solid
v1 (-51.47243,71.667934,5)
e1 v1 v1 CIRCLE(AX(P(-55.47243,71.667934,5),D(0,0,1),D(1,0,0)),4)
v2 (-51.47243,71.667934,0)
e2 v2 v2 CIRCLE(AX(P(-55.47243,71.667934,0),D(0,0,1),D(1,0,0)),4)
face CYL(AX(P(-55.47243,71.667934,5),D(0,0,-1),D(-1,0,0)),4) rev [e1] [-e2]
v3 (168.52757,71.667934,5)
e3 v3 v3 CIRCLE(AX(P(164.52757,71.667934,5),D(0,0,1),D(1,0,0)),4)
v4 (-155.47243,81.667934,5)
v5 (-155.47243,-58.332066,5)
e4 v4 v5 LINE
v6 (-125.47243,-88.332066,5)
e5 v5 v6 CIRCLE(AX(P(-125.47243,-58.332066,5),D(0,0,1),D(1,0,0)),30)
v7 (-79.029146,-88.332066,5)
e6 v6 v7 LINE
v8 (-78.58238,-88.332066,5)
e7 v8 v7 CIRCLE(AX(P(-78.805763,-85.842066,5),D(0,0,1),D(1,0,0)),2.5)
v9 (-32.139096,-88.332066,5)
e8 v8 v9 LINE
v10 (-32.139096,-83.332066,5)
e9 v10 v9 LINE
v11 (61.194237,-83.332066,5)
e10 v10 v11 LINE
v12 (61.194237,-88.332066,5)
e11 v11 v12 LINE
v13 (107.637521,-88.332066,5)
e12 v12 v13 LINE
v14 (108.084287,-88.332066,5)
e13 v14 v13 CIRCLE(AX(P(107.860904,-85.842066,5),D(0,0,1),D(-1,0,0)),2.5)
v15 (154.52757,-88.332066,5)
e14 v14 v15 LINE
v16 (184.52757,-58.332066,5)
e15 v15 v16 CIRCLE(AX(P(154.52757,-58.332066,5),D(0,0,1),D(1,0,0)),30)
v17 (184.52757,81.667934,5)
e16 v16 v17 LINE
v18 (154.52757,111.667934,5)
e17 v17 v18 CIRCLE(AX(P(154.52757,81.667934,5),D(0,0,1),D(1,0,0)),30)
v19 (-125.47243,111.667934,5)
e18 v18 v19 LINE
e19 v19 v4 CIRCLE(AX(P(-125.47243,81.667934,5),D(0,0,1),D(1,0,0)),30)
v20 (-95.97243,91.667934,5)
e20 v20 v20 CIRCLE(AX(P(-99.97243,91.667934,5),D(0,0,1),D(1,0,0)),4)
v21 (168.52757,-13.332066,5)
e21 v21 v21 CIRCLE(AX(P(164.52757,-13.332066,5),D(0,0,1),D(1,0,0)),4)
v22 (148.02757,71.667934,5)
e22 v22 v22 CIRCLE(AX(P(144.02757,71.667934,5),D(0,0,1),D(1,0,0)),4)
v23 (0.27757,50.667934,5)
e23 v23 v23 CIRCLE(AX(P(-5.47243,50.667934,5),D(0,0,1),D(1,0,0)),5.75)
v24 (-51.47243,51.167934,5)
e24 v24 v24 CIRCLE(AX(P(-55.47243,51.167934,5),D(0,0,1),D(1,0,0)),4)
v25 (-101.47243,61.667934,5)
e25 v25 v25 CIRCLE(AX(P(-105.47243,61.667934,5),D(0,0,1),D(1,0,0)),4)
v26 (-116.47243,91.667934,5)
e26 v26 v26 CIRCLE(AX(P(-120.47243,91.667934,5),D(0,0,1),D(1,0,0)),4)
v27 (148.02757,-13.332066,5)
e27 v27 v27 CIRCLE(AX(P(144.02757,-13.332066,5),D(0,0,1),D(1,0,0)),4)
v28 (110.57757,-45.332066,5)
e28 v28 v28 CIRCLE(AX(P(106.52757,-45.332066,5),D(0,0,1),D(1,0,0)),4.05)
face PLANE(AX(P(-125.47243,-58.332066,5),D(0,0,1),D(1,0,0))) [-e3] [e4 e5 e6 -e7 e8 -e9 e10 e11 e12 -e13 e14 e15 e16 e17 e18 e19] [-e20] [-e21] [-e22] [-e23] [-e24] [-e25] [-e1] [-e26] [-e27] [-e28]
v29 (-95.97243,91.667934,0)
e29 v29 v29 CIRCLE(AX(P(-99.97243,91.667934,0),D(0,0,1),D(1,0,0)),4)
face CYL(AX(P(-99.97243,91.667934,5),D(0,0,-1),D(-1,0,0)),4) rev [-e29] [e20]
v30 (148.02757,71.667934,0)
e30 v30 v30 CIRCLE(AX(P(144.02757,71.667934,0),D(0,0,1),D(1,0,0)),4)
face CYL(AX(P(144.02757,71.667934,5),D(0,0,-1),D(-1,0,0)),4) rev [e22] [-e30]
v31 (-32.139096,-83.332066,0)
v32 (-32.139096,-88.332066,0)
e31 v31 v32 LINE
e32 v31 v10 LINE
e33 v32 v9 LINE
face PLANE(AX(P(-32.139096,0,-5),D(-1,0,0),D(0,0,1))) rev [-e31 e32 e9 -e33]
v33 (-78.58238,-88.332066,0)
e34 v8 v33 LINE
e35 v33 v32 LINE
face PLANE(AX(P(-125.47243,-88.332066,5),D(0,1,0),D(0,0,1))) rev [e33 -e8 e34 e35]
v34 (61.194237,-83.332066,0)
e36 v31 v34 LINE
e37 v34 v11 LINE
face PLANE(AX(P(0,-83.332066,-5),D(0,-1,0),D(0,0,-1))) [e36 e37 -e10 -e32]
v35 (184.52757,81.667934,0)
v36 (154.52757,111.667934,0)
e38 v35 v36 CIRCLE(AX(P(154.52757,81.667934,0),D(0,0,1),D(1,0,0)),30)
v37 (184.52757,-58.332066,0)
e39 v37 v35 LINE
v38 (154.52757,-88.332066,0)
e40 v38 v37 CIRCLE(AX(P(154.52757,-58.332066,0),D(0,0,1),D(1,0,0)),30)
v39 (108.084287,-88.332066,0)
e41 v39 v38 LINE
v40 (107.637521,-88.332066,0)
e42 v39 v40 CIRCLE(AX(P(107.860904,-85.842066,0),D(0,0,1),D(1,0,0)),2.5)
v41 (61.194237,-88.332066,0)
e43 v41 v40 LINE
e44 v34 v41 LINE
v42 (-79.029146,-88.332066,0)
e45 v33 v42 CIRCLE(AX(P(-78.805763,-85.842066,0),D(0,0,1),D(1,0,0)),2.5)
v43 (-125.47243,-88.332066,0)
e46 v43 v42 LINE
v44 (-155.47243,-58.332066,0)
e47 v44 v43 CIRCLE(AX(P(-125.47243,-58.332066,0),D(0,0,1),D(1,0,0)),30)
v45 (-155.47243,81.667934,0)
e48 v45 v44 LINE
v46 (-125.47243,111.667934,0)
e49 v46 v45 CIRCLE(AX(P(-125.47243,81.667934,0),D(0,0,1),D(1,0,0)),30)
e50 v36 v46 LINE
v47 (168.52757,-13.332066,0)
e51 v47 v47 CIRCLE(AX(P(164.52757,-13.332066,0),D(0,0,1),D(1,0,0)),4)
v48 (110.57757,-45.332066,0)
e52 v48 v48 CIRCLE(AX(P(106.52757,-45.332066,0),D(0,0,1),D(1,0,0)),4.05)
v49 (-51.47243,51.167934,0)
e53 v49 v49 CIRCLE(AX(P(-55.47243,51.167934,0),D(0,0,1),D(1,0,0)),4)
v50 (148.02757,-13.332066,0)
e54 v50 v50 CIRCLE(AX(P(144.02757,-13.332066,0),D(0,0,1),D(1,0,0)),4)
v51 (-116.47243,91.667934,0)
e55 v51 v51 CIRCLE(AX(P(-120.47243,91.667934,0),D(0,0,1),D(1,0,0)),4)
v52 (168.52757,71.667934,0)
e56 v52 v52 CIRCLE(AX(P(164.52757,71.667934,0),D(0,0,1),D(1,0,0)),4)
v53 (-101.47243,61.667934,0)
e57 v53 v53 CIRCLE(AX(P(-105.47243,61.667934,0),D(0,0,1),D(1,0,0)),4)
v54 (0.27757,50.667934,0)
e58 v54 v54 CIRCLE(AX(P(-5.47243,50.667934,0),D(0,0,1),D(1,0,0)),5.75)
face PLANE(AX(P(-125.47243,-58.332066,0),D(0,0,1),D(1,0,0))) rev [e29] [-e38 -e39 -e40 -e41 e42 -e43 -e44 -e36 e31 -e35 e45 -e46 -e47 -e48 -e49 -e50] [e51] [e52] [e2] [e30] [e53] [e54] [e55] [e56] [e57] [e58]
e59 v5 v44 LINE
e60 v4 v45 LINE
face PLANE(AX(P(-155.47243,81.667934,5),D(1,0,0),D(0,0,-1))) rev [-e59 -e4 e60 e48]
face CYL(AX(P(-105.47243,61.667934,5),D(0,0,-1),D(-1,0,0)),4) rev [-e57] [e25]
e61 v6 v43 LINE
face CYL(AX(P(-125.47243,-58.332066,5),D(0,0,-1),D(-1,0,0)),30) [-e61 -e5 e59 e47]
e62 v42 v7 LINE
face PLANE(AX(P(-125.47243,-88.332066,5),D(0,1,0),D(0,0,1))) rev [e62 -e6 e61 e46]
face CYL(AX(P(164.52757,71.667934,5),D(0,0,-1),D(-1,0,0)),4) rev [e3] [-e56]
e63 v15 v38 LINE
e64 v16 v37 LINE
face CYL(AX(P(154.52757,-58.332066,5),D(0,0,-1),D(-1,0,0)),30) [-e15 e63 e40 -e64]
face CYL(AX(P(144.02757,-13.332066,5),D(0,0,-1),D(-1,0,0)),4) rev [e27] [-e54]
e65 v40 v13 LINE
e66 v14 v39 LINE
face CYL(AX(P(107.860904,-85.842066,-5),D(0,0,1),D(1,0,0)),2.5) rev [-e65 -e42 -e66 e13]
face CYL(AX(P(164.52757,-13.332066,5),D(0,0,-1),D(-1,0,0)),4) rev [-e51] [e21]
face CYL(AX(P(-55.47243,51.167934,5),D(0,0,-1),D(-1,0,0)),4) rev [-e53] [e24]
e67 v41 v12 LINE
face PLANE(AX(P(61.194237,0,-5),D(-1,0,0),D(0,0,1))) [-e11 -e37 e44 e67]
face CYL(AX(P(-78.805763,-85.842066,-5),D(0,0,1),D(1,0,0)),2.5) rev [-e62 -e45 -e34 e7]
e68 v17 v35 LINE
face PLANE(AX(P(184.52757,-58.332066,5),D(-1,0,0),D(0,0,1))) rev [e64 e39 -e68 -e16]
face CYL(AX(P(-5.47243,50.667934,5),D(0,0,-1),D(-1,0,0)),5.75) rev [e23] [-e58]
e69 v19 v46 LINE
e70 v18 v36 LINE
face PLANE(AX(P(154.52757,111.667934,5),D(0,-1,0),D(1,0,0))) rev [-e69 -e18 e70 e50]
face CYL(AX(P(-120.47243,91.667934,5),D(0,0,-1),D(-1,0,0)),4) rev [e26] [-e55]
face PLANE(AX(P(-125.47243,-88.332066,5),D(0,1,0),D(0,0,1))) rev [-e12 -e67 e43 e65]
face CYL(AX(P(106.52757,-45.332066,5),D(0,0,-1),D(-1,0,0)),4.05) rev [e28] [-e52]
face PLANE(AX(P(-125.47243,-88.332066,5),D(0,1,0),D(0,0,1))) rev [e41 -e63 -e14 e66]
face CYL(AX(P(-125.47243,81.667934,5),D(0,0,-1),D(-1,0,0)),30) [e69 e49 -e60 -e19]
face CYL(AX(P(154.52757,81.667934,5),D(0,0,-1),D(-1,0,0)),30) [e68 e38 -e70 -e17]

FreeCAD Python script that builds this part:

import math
import FreeCAD as App
import Part
import Sketcher
from FreeCAD import Vector

doc = App.newDocument("Part")
body = doc.addObject("PartDesign::Body", "Body")

# Sketch on XY plane
sketch1 = body.newObject("Sketcher::SketchObject", "Sketch")
sketch1.AttachmentSupport = (doc.getObject("XY_Plane"), [""])
sketch1.MapMode = "FlatFace"
sketch1.addGeometry(Part.LineSegment(Vector(-125.5, -88.3, 0), Vector(154.5, -88.3, 0)), False)
sketch1.addGeometry(Part.ArcOfCircle(Part.Circle(Vector(154.5, -58.3, 0), Vector(0, 0, 1), 30), math.radians(-90), math.radians(0)), False)
sketch1.addGeometry(Part.LineSegment(Vector(184.5, -58.3, 0), Vector(184.5, 81.7, 0)), False)
sketch1.addGeometry(Part.ArcOfCircle(Part.Circle(Vector(154.5, 81.7, 0), Vector(0, 0, 1), 30), math.radians(0), math.radians(90)), False)
sketch1.addGeometry(Part.LineSegment(Vector(154.5, 111.7, 0), Vector(-125.5, 111.7, 0)), False)
sketch1.addGeometry(Part.ArcOfCircle(Part.Circle(Vector(-125.5, 81.7, 0), Vector(0, 0, 1), 30), math.radians(90), math.radians(180)), False)
sketch1.addGeometry(Part.LineSegment(Vector(-155.5, 81.7, 0), Vector(-155.5, -58.3, 0)), False)
sketch1.addGeometry(Part.ArcOfCircle(Part.Circle(Vector(-125.5, -58.3, 0), Vector(0, 0, 1), 30), math.radians(-180), math.radians(-90)), False)
sketch1.addGeometry(Part.Circle(Vector(106.5, -45.3, 0), Vector(0, 0, 1), 4), False)
sketch1.addGeometry(Part.Circle(Vector(144, -13.3, 0), Vector(0, 0, 1), 4), False)
sketch1.addGeometry(Part.Circle(Vector(164.5, -13.3, 0), Vector(0, 0, 1), 4), False)
sketch1.addGeometry(Part.Circle(Vector(-55.5, 51.2, 0), Vector(0, 0, 1), 4), False)
sketch1.addGeometry(Part.Circle(Vector(-5.5, 50.7, 0), Vector(0, 0, 1), 5.8), False)
sketch1.addGeometry(Part.Circle(Vector(-105.5, 61.7, 0), Vector(0, 0, 1), 4), False)
sketch1.addGeometry(Part.Circle(Vector(-55.5, 71.7, 0), Vector(0, 0, 1), 4), False)
sketch1.addGeometry(Part.Circle(Vector(-120.5, 91.7, 0), Vector(0, 0, 1), 4), False)
sketch1.addGeometry(Part.Circle(Vector(-100, 91.7, 0), Vector(0, 0, 1), 4), False)
sketch1.addGeometry(Part.Circle(Vector(144, 71.7, 0), Vector(0, 0, 1), 4), False)
sketch1.addGeometry(Part.Circle(Vector(164.5, 71.7, 0), Vector(0, 0, 1), 4), False)
sketch1.addConstraint(Sketcher.Constraint("Tangent", 0, 2, 1, 1))
sketch1.addConstraint(Sketcher.Constraint("Tangent", 1, 2, 2, 1))
sketch1.addConstraint(Sketcher.Constraint("Tangent", 2, 2, 3, 1))
sketch1.addConstraint(Sketcher.Constraint("Tangent", 3, 2, 4, 1))
sketch1.addConstraint(Sketcher.Constraint("Tangent", 4, 2, 5, 1))
sketch1.addConstraint(Sketcher.Constraint("Tangent", 5, 2, 6, 1))
sketch1.addConstraint(Sketcher.Constraint("Tangent", 6, 2, 7, 1))
sketch1.addConstraint(Sketcher.Constraint("Tangent", 7, 2, 0, 1))
sketch1.addConstraint(Sketcher.Constraint("Horizontal", 0))
sketch1.addConstraint(Sketcher.Constraint("Vertical", 2))
sketch1.addConstraint(Sketcher.Constraint("Horizontal", 4))
sketch1.addConstraint(Sketcher.Constraint("Vertical", 6))
sketch1.addConstraint(Sketcher.Constraint("Equal", 1, 3))
sketch1.addConstraint(Sketcher.Constraint("Equal", 3, 5))
sketch1.addConstraint(Sketcher.Constraint("Equal", 5, 7))
sketch1.addConstraint(Sketcher.Constraint("Equal", 9, 10))
sketch1.addConstraint(Sketcher.Constraint("Equal", 10, 11))
sketch1.addConstraint(Sketcher.Constraint("Equal", 11, 13))
sketch1.addConstraint(Sketcher.Constraint("Equal", 13, 14))
sketch1.addConstraint(Sketcher.Constraint("Equal", 14, 15))
sketch1.addConstraint(Sketcher.Constraint("Equal", 15, 16))
sketch1.addConstraint(Sketcher.Constraint("Equal", 16, 17))
sketch1.addConstraint(Sketcher.Constraint("Equal", 17, 18))
sketch1.addConstraint(Sketcher.Constraint("Horizontal", 9, 3, 10, 3))
sketch1.addConstraint(Sketcher.Constraint("Horizontal", 15, 3, 16, 3))
sketch1.addConstraint(Sketcher.Constraint("Horizontal", 14, 3, 17, 3))
sketch1.addConstraint(Sketcher.Constraint("Horizontal", 17, 3, 18, 3))
sketch1.addConstraint(Sketcher.Constraint("Vertical", 11, 3, 14, 3))
sketch1.addConstraint(Sketcher.Constraint("Vertical", 9, 3, 17, 3))
sketch1.addConstraint(Sketcher.Constraint("Vertical", 10, 3, 18, 3))
sketch1.addConstraint(Sketcher.Constraint("Diameter", 9, 8.0))
sketch1.addConstraint(Sketcher.Constraint("Radius", 1, 30.0))
sketch1.addConstraint(Sketcher.Constraint("Diameter", 8, 8.1))
sketch1.addConstraint(Sketcher.Constraint("Diameter", 12, 11.5))
sketch1.addConstraint(Sketcher.Constraint("DistanceX", 0, 1, 0, 2, 280.0))
sketch1.addConstraint(Sketcher.Constraint("DistanceY", 2, 1, 2, 2, 140.0))
sketch1.addConstraint(Sketcher.Constraint("DistanceX", 8, 3, 1, 3, 48.0))
sketch1.addConstraint(Sketcher.Constraint("DistanceY", 1, 3, 8, 3, 13.0))
sketch1.addConstraint(Sketcher.Constraint("DistanceY", 1, 3, 9, 3, 45.0))
sketch1.addConstraint(Sketcher.Constraint("DistanceX", 1, 3, 10, 3, 10.0))
sketch1.addConstraint(Sketcher.Constraint("DistanceX", 5, 3, 11, 3, 70.0))
sketch1.addConstraint(Sketcher.Constraint("DistanceX", 11, 3, 12, 3, 50.0))
sketch1.addConstraint(Sketcher.Constraint("DistanceY", 12, 3, 5, 3, 31.0))
sketch1.addConstraint(Sketcher.Constraint("DistanceX", 5, 3, 13, 3, 20.0))
sketch1.addConstraint(Sketcher.Constraint("DistanceY", 13, 3, 5, 3, 20.0))
sketch1.addConstraint(Sketcher.Constraint("DistanceY", 13, 3, 14, 3, 10.0))
sketch1.addConstraint(Sketcher.Constraint("DistanceX", 5, 3, 15, 3, 5.0))
sketch1.addConstraint(Sketcher.Constraint("DistanceY", 5, 3, 15, 3, 10.0))
sketch1.addConstraint(Sketcher.Constraint("DistanceX", 9, 3, 1, 3, 10.5))
sketch1.addConstraint(Sketcher.Constraint("DistanceY", 11, 3, 5, 3, 30.5))
sketch1.addConstraint(Sketcher.Constraint("DistanceX", 15, 3, 16, 3, 20.5))
sketch1.addConstraint(Sketcher.Constraint("DistanceX", -1, 1, 1, 3, 154.52757))
sketch1.addConstraint(Sketcher.Constraint("DistanceY", 1, 3, -1, 1, 58.332066))
pad1 = body.newObject("PartDesign::Pad", "Pad")
pad1.Profile = sketch1
pad1.Length = 5

# Sketch on XY plane
sketch2 = body.newObject("Sketcher::SketchObject", "Sketch001")
sketch2.AttachmentSupport = (doc.getObject("XY_Plane"), [""])
sketch2.MapMode = "FlatFace"
sketch2.AttachmentOffset = App.Placement(Vector(0, 0, 5), App.Rotation())
sketch2.addGeometry(Part.LineSegment(Vector(-32, -83, 0), Vector(-32, -88, 0)), False)
sketch2.addGeometry(Part.LineSegment(Vector(-32, -88, 0), Vector(61, -88, 0)), False)
sketch2.addGeometry(Part.LineSegment(Vector(61, -88, 0), Vector(61, -83, 0)), False)
sketch2.addGeometry(Part.LineSegment(Vector(61, -83, 0), Vector(-32, -83, 0)), False)
sketch2.addConstraint(Sketcher.Constraint("Coincident", 0, 2, 1, 1))
sketch2.addConstraint(Sketcher.Constraint("Coincident", 1, 2, 2, 1))
sketch2.addConstraint(Sketcher.Constraint("Coincident", 2, 2, 3, 1))
sketch2.addConstraint(Sketcher.Constraint("Coincident", 3, 2, 0, 1))
sketch2.addConstraint(Sketcher.Constraint("Vertical", 0))
sketch2.addConstraint(Sketcher.Constraint("Horizontal", 1))
sketch2.addConstraint(Sketcher.Constraint("Vertical", 2))
sketch2.addConstraint(Sketcher.Constraint("Horizontal", 3))
sketch2.addConstraint(Sketcher.Constraint("DistanceY", 0, 2, 0, 1, 5.0))
sketch2.addConstraint(Sketcher.Constraint("DistanceX", 1, 1, 1, 2, 93.333333))
sketch2.addConstraint(Sketcher.Constraint("DistanceX", 0, 2, -1, 1, 32.139096))
sketch2.addConstraint(Sketcher.Constraint("DistanceY", 0, 2, -1, 1, 88.332066))
pocket1 = body.newObject("PartDesign::Pocket", "Pocket")
pocket1.Profile = sketch2
pocket1.Length = 10

# Sketch on XY plane
sketch3 = body.newObject("Sketcher::SketchObject", "Sketch002")
sketch3.AttachmentSupport = (doc.getObject("XY_Plane"), [""])
sketch3.MapMode = "FlatFace"
sketch3.AttachmentOffset = App.Placement(Vector(0, 0, 5), App.Rotation())
sketch3.addGeometry(Part.Circle(Vector(-78.8, -85.8, 0), Vector(0, 0, 1), 2.5), False)
sketch3.addGeometry(Part.Circle(Vector(107.9, -85.8, 0), Vector(0, 0, 1), 2.5), False)
sketch3.addConstraint(Sketcher.Constraint("Equal", 0, 1))
sketch3.addConstraint(Sketcher.Constraint("Horizontal", 0, 3, 1, 3))
sketch3.addConstraint(Sketcher.Constraint("Diameter", 0, 5.0))
sketch3.addConstraint(Sketcher.Constraint("DistanceX", 0, 3, -1, 1, 78.805763))
sketch3.addConstraint(Sketcher.Constraint("DistanceY", 0, 3, -1, 1, 85.842066))
sketch3.addConstraint(Sketcher.Constraint("DistanceX", -1, 1, 1, 3, 107.860904))
pocket2 = body.newObject("PartDesign::Pocket", "Pocket001")
pocket2.Profile = sketch3
pocket2.Length = 10

doc.recompute()
